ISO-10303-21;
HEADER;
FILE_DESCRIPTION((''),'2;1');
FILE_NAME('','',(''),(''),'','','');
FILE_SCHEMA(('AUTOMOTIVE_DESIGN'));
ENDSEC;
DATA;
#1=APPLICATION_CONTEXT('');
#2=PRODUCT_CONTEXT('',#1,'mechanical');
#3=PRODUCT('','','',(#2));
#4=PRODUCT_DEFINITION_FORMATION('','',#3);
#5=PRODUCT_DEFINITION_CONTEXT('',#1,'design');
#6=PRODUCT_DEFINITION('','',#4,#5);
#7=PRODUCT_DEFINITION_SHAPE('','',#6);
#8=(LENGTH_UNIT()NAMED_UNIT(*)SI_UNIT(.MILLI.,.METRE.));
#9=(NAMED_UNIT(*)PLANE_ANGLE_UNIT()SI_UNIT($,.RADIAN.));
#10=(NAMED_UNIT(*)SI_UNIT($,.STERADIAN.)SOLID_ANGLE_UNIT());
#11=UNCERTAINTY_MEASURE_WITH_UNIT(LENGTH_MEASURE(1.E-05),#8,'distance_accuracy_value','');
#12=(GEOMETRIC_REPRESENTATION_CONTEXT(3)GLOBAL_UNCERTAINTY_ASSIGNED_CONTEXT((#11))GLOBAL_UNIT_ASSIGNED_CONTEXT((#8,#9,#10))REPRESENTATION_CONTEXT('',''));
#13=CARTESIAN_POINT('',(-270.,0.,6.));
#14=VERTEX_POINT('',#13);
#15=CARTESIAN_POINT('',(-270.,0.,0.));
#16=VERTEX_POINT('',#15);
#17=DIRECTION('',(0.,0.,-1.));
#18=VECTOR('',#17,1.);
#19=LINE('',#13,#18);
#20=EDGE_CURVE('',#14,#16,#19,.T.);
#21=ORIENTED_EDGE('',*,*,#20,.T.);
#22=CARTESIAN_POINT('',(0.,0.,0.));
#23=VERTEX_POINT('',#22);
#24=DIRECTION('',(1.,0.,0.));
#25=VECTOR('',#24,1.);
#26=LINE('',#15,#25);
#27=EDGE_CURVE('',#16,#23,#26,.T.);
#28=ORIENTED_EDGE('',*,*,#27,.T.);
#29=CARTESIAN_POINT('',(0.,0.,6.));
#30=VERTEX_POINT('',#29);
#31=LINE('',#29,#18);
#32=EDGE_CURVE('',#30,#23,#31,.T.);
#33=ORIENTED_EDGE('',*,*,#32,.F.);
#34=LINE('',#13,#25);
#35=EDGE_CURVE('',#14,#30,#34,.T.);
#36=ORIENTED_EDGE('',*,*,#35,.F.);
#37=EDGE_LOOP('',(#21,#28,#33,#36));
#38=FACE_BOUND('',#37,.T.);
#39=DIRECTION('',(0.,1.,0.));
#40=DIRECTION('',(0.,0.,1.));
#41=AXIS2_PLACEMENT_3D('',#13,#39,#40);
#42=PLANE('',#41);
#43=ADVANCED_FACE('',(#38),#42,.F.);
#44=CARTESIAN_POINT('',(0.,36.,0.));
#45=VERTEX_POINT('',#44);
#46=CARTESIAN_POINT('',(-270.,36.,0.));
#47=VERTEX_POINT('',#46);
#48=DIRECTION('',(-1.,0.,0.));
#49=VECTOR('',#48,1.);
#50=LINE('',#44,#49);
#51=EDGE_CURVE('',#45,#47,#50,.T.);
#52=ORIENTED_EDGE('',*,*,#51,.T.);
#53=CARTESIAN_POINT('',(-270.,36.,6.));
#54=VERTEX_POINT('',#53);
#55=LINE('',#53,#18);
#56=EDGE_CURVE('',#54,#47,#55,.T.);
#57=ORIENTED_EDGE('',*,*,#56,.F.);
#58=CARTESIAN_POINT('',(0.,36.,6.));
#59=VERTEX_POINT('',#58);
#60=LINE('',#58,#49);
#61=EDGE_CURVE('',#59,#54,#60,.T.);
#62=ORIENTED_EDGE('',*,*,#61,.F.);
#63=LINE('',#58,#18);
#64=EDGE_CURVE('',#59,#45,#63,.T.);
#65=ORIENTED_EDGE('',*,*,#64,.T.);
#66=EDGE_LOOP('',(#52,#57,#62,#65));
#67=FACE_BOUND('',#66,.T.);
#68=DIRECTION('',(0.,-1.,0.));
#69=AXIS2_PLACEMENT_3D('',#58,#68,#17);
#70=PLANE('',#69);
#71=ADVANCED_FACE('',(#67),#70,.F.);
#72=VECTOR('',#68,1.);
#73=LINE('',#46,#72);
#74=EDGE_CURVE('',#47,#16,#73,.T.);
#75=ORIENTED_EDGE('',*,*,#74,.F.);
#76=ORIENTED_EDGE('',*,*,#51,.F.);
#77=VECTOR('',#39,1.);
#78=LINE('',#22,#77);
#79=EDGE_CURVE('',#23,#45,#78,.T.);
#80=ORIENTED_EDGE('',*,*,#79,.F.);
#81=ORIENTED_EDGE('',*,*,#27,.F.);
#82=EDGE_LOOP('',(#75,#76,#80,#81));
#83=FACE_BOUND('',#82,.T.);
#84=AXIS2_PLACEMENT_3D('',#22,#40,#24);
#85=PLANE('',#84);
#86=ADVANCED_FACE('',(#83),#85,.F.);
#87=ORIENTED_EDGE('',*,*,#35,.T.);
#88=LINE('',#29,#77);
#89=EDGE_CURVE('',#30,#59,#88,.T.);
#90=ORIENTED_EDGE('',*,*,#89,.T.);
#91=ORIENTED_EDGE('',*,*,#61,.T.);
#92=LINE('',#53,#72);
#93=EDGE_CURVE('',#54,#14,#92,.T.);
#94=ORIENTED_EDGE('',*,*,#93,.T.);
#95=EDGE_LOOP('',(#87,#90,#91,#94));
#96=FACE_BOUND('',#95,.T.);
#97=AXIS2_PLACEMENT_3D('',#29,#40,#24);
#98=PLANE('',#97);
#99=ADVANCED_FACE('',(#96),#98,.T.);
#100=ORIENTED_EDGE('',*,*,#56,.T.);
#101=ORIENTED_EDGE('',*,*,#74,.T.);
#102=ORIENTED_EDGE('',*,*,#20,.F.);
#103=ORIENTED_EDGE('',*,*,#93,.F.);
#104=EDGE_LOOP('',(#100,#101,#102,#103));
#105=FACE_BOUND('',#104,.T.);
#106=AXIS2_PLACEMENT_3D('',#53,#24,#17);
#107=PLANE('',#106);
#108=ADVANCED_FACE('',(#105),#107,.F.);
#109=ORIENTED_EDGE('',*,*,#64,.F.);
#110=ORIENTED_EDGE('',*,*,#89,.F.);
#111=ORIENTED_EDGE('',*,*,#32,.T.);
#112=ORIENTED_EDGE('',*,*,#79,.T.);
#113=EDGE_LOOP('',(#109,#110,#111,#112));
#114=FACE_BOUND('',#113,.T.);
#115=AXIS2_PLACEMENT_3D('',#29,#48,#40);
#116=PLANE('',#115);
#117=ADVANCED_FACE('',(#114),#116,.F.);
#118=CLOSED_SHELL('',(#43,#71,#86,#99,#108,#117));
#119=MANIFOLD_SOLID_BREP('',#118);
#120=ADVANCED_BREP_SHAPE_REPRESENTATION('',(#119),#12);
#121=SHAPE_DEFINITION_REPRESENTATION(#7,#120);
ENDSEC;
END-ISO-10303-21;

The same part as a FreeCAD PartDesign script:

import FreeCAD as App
import Part
import Sketcher
from FreeCAD import Vector


def add_polygon(sketch, points):
    """Adds a closed chain of lines whose ends are joined by coincident constraints."""
    first, n = sketch.GeometryCount, len(points)
    for a, b in zip(points, points[1:] + points[:1]):
        sketch.addGeometry(Part.LineSegment(App.Vector(*a, 0), App.Vector(*b, 0)), False)
    for i in range(n):
        sketch.addConstraint(Sketcher.Constraint("Coincident", first + i, 2, first + (i + 1) % n, 1))

doc = App.newDocument("Part")
body = doc.addObject("PartDesign::Body", "Body")

# Sketch on XY plane
sketch1 = body.newObject("Sketcher::SketchObject", "Sketch")
sketch1.AttachmentSupport = (doc.getObject("XY_Plane"), [""])
sketch1.MapMode = "FlatFace"
add_polygon(sketch1, [(-270, 36), (-270, 0), (0, 0), (0, 36)])  # lines 0-3
sketch1.addConstraint([
    Sketcher.Constraint("Vertical", 0),
    Sketcher.Constraint("Horizontal", 1),
    Sketcher.Constraint("Vertical", 2),
    Sketcher.Constraint("Horizontal", 3),
    Sketcher.Constraint("Coincident", 1, 2, -1, 1),
    Sketcher.Constraint("DistanceX", 1, 1, 1, 2, 270.0),
    Sketcher.Constraint("DistanceY", 0, 2, 0, 1, 36.0),
])
pad1 = body.newObject("PartDesign::Pad", "Pad")
pad1.Profile = sketch1
pad1.Length = 6

doc.recompute()
